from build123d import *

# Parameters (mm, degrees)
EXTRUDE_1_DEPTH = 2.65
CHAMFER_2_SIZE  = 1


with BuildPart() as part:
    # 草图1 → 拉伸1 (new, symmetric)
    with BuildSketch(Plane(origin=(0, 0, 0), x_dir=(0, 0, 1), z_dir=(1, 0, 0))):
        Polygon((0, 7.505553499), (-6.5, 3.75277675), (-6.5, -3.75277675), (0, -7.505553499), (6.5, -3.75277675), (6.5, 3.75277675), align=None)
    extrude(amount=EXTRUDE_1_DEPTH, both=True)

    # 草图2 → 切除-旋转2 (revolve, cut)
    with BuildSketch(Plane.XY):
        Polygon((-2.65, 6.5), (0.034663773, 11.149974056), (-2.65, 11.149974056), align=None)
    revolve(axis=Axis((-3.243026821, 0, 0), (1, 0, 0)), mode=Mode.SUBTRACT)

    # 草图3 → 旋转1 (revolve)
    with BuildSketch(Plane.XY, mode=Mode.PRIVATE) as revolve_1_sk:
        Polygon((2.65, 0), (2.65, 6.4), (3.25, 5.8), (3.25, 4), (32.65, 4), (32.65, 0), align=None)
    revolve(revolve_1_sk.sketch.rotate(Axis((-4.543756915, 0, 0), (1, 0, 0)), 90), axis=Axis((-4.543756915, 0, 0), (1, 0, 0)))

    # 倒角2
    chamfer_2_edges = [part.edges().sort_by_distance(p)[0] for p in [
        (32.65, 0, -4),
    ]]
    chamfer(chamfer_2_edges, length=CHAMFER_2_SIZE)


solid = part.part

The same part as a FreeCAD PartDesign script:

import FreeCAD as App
import Part
import Sketcher
from FreeCAD import Vector
Q = App.Units.Quantity


def edges_at(feature, points):
    """Names of the edges that pass closest to the given points."""
    edges = feature.Shape.Edges
    near = lambda p: min(range(len(edges)), key=lambda i: edges[i].distToShape(Part.Vertex(*p))[0])
    return sorted({f"Edge{near(p) + 1}" for p in points})


def add_polygon(sketch, points):
    """Adds a closed chain of lines whose ends are joined by coincident constraints."""
    first, n = sketch.GeometryCount, len(points)
    for a, b in zip(points, points[1:] + points[:1]):
        sketch.addGeometry(Part.LineSegment(App.Vector(*a, 0), App.Vector(*b, 0)), False)
    for i in range(n):
        sketch.addConstraint(Sketcher.Constraint("Coincident", first + i, 2, first + (i + 1) % n, 1))

doc = App.newDocument("Part")
body = doc.addObject("PartDesign::Body", "Body")

# Sketch on YZ plane
sketch1 = body.newObject("Sketcher::SketchObject", "Sketch")
sketch1.AttachmentSupport = (doc.getObject("YZ_Plane"), [""])
sketch1.MapMode = "FlatFace"
add_polygon(sketch1, [(-8, 0), (-4, -6), (4, -6), (8, 0), (4, 6), (-4, 6)])  # lines 0-5
sketch1.addConstraint([
    Sketcher.Constraint("Horizontal", 1),
    Sketcher.Constraint("Horizontal", 4),
    Sketcher.Constraint("Symmetric", 0, 2, 3, 2, -1, 1),
    Sketcher.Constraint("Symmetric", 2, 2, 5, 2, -1, 1),
    Sketcher.Constraint("PointOnObject", 2, 2, -1),
    Sketcher.Constraint("Parallel", 2, 5),
    Sketcher.Constraint("Vertical", 1, 2, 3, 2),
    Sketcher.Constraint("Angle", 0, Q("-60 deg")),
    Sketcher.Constraint("DistanceY", 1, 2, 3, 2, 13.0),
    Sketcher.Constraint("DistanceX", 1, 1, 1, 2, 7.505554),
])
pad1 = body.newObject("PartDesign::Pad", "Pad")
pad1.Profile = sketch1
pad1.Length = 5.3
pad1.Midplane = True

# Sketch on XY plane
sketch2 = body.newObject("Sketcher::SketchObject", "Sketch001")
sketch2.AttachmentSupport = (doc.getObject("XY_Plane"), [""])
sketch2.MapMode = "FlatFace"
add_polygon(sketch2, [(-2.6, 6.5), (0, 11.1), (-2.6, 11.1)])  # lines 0-2
sketch2.addConstraint([
    Sketcher.Constraint("Horizontal", 1),
    Sketcher.Constraint("Vertical", 2),
    Sketcher.Constraint("Angle", 0, Q("60 deg")),
    Sketcher.Constraint("DistanceY", -1, 1, 2, 2, 6.5),
    Sketcher.Constraint("DistanceX", 1, 2, -1, 1, 2.65),
    Sketcher.Constraint("DistanceX", 1, 2, 1, 1, 2.684664),
])
groove = body.newObject("PartDesign::Groove", "Groove")
groove.Profile = sketch2
groove.ReferenceAxis = (sketch2, ["H_Axis"])
groove.Angle = 360

# Sketch on XY plane
sketch3 = body.newObject("Sketcher::SketchObject", "Sketch002")
sketch3.AttachmentSupport = (doc.getObject("XY_Plane"), [""])
sketch3.MapMode = "FlatFace"
add_polygon(sketch3, [(2.6, 6.4), (2.6, 0), (32.6, 0), (32.6, 4), (3.2, 4), (3.2, 5.8)])  # lines 0-5
sketch3.addConstraint([
    Sketcher.Constraint("Vertical", 0),
    Sketcher.Constraint("Horizontal", 1),
    Sketcher.Constraint("Vertical", 2),
    Sketcher.Constraint("Horizontal", 3),
    Sketcher.Constraint("Vertical", 4),
    Sketcher.Constraint("PointOnObject", 0, 2, -1),
    Sketcher.Constraint("DistanceX", 1, 1, 1, 2, 30.0),
    Sketcher.Constraint("DistanceY", 2, 1, 2, 2, 4.0),
    Sketcher.Constraint("Angle", 5, Q("135 deg")),
    Sketcher.Constraint("DistanceX", 3, 2, 3, 1, 29.4),
    Sketcher.Constraint("DistanceY", 0, 2, 0, 1, 6.4),
    Sketcher.Constraint("DistanceX", -1, 1, 0, 2, 2.65),
])
revolution = body.newObject("PartDesign::Revolution", "Revolution")
revolution.Profile = sketch3
revolution.ReferenceAxis = (sketch3, ["H_Axis"])
revolution.Angle = 360
doc.recompute()

chamfer = body.newObject("PartDesign::Chamfer", "Chamfer")
chamfer.Base = (revolution, edges_at(revolution, [(32.65, 0, -4)]))
chamfer.Size = 1

doc.recompute()
